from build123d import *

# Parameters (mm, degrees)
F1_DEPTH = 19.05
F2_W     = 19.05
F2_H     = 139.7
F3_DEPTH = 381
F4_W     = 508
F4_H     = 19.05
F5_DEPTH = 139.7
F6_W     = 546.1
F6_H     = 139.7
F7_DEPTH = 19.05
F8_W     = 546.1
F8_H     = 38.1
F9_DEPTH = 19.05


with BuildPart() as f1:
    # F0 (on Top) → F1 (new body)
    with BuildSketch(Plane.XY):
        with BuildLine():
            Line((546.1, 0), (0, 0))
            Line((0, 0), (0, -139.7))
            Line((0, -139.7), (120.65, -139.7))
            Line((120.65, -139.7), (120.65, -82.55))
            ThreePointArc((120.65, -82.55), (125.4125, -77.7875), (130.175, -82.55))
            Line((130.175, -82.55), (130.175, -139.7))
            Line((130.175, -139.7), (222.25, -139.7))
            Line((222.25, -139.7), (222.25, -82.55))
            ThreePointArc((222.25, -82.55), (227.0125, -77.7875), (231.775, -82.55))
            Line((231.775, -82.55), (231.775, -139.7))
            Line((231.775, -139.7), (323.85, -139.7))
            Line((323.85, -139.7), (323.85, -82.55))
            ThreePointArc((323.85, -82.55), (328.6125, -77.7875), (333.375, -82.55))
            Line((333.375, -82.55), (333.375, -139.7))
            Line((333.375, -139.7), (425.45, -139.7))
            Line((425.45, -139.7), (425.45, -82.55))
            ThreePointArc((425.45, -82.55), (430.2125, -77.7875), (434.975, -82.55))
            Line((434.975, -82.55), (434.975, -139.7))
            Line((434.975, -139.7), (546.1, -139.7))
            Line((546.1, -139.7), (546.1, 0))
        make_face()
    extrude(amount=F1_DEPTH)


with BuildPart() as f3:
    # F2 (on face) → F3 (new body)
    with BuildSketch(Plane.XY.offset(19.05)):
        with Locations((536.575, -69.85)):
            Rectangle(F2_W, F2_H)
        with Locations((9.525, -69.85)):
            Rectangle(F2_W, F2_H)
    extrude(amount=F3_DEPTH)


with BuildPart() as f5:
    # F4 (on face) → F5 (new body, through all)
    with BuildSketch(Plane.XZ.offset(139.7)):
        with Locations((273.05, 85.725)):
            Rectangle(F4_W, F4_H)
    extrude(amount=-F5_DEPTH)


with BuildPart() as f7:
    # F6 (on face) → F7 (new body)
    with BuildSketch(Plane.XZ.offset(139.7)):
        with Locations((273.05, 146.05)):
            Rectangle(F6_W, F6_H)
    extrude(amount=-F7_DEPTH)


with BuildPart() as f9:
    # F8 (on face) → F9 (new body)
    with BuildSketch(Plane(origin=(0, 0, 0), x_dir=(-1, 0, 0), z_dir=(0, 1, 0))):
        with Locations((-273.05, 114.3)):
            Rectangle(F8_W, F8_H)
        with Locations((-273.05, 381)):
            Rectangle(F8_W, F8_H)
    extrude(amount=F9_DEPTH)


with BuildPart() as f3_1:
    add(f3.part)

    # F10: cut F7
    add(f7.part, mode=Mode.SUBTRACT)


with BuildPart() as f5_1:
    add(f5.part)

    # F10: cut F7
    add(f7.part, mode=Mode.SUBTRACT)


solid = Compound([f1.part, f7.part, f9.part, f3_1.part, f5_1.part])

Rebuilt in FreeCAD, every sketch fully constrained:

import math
import FreeCAD as App
import Part
import Sketcher
from FreeCAD import Vector
Q = App.Units.Quantity

doc = App.newDocument("Part")
body = doc.addObject("PartDesign::Body", "Body")

# Sketch on XY plane
sketch1 = body.newObject("Sketcher::SketchObject", "Sketch")
sketch1.AttachmentSupport = (doc.getObject("XY_Plane"), [""])
sketch1.MapMode = "FlatFace"
sketch1.addGeometry(Part.LineSegment(Vector(546.1, 0, 0), Vector(0, 0, 0)), False)
sketch1.addGeometry(Part.LineSegment(Vector(0, 0, 0), Vector(0, -139.7, 0)), False)
sketch1.addGeometry(Part.LineSegment(Vector(0, -139.7, 0), Vector(120.7, -139.7, 0)), False)
sketch1.addGeometry(Part.LineSegment(Vector(120.7, -139.7, 0), Vector(120.7, -82.5, 0)), False)
sketch1.addGeometry(Part.ArcOfCircle(Part.Circle(Vector(125.4, -82.5, 0), Vector(0, 0, 1), 4.8), math.radians(0), math.radians(180)), False)
sketch1.addGeometry(Part.LineSegment(Vector(130.2, -82.5, 0), Vector(130.2, -139.7, 0)), False)
sketch1.addGeometry(Part.LineSegment(Vector(130.2, -139.7, 0), Vector(222.2, -139.7, 0)), False)
sketch1.addGeometry(Part.LineSegment(Vector(222.2, -139.7, 0), Vector(222.2, -82.5, 0)), False)
sketch1.addGeometry(Part.ArcOfCircle(Part.Circle(Vector(227, -82.5, 0), Vector(0, 0, 1), 4.8), math.radians(0), math.radians(180)), False)
sketch1.addGeometry(Part.LineSegment(Vector(231.8, -82.5, 0), Vector(231.8, -139.7, 0)), False)
sketch1.addGeometry(Part.LineSegment(Vector(231.8, -139.7, 0), Vector(323.9, -139.7, 0)), False)
sketch1.addGeometry(Part.LineSegment(Vector(323.9, -139.7, 0), Vector(323.9, -82.5, 0)), False)
sketch1.addGeometry(Part.ArcOfCircle(Part.Circle(Vector(328.6, -82.5, 0), Vector(0, 0, 1), 4.8), math.radians(0), math.radians(180)), False)
sketch1.addGeometry(Part.LineSegment(Vector(333.4, -82.5, 0), Vector(333.4, -139.7, 0)), False)
sketch1.addGeometry(Part.LineSegment(Vector(333.4, -139.7, 0), Vector(425.4, -139.7, 0)), False)
sketch1.addGeometry(Part.LineSegment(Vector(425.4, -139.7, 0), Vector(425.4, -82.5, 0)), False)
sketch1.addGeometry(Part.ArcOfCircle(Part.Circle(Vector(430.2, -82.5, 0), Vector(0, 0, 1), 4.8), math.radians(0), math.radians(180)), False)
sketch1.addGeometry(Part.LineSegment(Vector(435, -82.5, 0), Vector(435, -139.7, 0)), False)
sketch1.addGeometry(Part.LineSegment(Vector(435, -139.7, 0), Vector(546.1, -139.7, 0)), False)
sketch1.addGeometry(Part.LineSegment(Vector(546.1, -139.7, 0), Vector(546.1, 0, 0)), False)
sketch1.addConstraint(Sketcher.Constraint("Coincident", 0, 2, 1, 1))
sketch1.addConstraint(Sketcher.Constraint("Coincident", 1, 2, 2, 1))
sketch1.addConstraint(Sketcher.Constraint("Coincident", 2, 2, 3, 1))
sketch1.addConstraint(Sketcher.Constraint("Tangent", 3, 2, 4, 2))
sketch1.addConstraint(Sketcher.Constraint("Tangent", 4, 1, 5, 1))
sketch1.addConstraint(Sketcher.Constraint("Coincident", 5, 2, 6, 1))
sketch1.addConstraint(Sketcher.Constraint("Coincident", 6, 2, 7, 1))
sketch1.addConstraint(Sketcher.Constraint("Tangent", 7, 2, 8, 2))
sketch1.addConstraint(Sketcher.Constraint("Tangent", 8, 1, 9, 1))
sketch1.addConstraint(Sketcher.Constraint("Coincident", 9, 2, 10, 1))
sketch1.addConstraint(Sketcher.Constraint("Coincident", 10, 2, 11, 1))
sketch1.addConstraint(Sketcher.Constraint("Tangent", 11, 2, 12, 2))
sketch1.addConstraint(Sketcher.Constraint("Tangent", 12, 1, 13, 1))
sketch1.addConstraint(Sketcher.Constraint("Coincident", 13, 2, 14, 1))
sketch1.addConstraint(Sketcher.Constraint("Coincident", 14, 2, 15, 1))
sketch1.addConstraint(Sketcher.Constraint("Tangent", 15, 2, 16, 2))
sketch1.addConstraint(Sketcher.Constraint("Tangent", 16, 1, 17, 1))
sketch1.addConstraint(Sketcher.Constraint("Coincident", 17, 2, 18, 1))
sketch1.addConstraint(Sketcher.Constraint("Coincident", 18, 2, 19, 1))
sketch1.addConstraint(Sketcher.Constraint("Coincident", 19, 2, 0, 1))
sketch1.addConstraint(Sketcher.Constraint("Horizontal", 0))
sketch1.addConstraint(Sketcher.Constraint("Vertical", 1))
sketch1.addConstraint(Sketcher.Constraint("Horizontal", 2))
sketch1.addConstraint(Sketcher.Constraint("Vertical", 3))
sketch1.addConstraint(Sketcher.Constraint("Vertical", 5))
sketch1.addConstraint(Sketcher.Constraint("Horizontal", 6))
sketch1.addConstraint(Sketcher.Constraint("Vertical", 7))
sketch1.addConstraint(Sketcher.Constraint("Vertical", 9))
sketch1.addConstraint(Sketcher.Constraint("Horizontal", 10))
sketch1.addConstraint(Sketcher.Constraint("Vertical", 11))
sketch1.addConstraint(Sketcher.Constraint("Vertical", 13))
sketch1.addConstraint(Sketcher.Constraint("Horizontal", 14))
sketch1.addConstraint(Sketcher.Constraint("Vertical", 15))
sketch1.addConstraint(Sketcher.Constraint("Vertical", 17))
sketch1.addConstraint(Sketcher.Constraint("Horizontal", 18))
sketch1.addConstraint(Sketcher.Constraint("Vertical", 19))
sketch1.addConstraint(Sketcher.Constraint("Coincident", 0, 2, -1, 1))
sketch1.addConstraint(Sketcher.Constraint("Equal", 4, 8))
sketch1.addConstraint(Sketcher.Constraint("Equal", 8, 12))
sketch1.addConstraint(Sketcher.Constraint("Equal", 12, 16))
sketch1.addConstraint(Sketcher.Constraint("Horizontal", 4, 3, 8, 3))
sketch1.addConstraint(Sketcher.Constraint("Horizontal", 8, 3, 12, 3))
sketch1.addConstraint(Sketcher.Constraint("Horizontal", 12, 3, 16, 3))
sketch1.addConstraint(Sketcher.Constraint("Horizontal", 2, 2, 5, 2))
sketch1.addConstraint(Sketcher.Constraint("Horizontal", 6, 2, 9, 2))
sketch1.addConstraint(Sketcher.Constraint("Horizontal", 10, 2, 13, 2))
sketch1.addConstraint(Sketcher.Constraint("Horizontal", 14, 2, 17, 2))
sketch1.addConstraint(Sketcher.Constraint("Equal", 6, 10))
sketch1.addConstraint(Sketcher.Constraint("Equal", 10, 14))
sketch1.addConstraint(Sketcher.Constraint("DistanceX", 0, 2, 0, 1, Q("21.5 in")))
sketch1.addConstraint(Sketcher.Constraint("DistanceY", 1, 2, 1, 1, Q("5.5 in")))
sketch1.addConstraint(Sketcher.Constraint("Radius", 4, Q("0.1875 in")))
sketch1.addConstraint(Sketcher.Constraint("DistanceX", 4, 3, 8, 3, Q("4 in")))
sketch1.addConstraint(Sketcher.Constraint("DistanceX", 2, 1, 2, 2, Q("4.75 in")))
sketch1.addConstraint(Sketcher.Constraint("DistanceY", 3, 1, 3, 2, Q("2.25 in")))
pad1 = body.newObject("PartDesign::Pad", "Pad")
pad1.Profile = sketch1
pad1.Length = Q("0.75 in")
body2 = doc.addObject("PartDesign::Body", "Body001")
body2.AllowCompound = True

# Sketch on XY plane
sketch2 = body2.newObject("Sketcher::SketchObject", "Sketch001")
sketch2.AttachmentSupport = (doc.getObject("XY_Plane001"), [""])
sketch2.MapMode = "FlatFace"
sketch2.AttachmentOffset = App.Placement(Vector(0, 0, 0.75 * 25.4), App.Rotation())
sketch2.addGeometry(Part.LineSegment(Vector(527, 0, 0), Vector(527, -140, 0)), False)
sketch2.addGeometry(Part.LineSegment(Vector(527, -140, 0), Vector(546, -140, 0)), False)
sketch2.addGeometry(Part.LineSegment(Vector(546, -140, 0), Vector(546, 0, 0)), False)
sketch2.addGeometry(Part.LineSegment(Vector(546, 0, 0), Vector(527, 0, 0)), False)
sketch2.addGeometry(Part.LineSegment(Vector(0, 0, 0), Vector(0, -140, 0)), False)
sketch2.addGeometry(Part.LineSegment(Vector(0, -140, 0), Vector(19, -140, 0)), False)
sketch2.addGeometry(Part.LineSegment(Vector(19, -140, 0), Vector(19, 0, 0)), False)
sketch2.addGeometry(Part.LineSegment(Vector(19, 0, 0), Vector(0, 0, 0)), False)
sketch2.addConstraint(Sketcher.Constraint("Coincident", 0, 2, 1, 1))
sketch2.addConstraint(Sketcher.Constraint("Coincident", 1, 2, 2, 1))
sketch2.addConstraint(Sketcher.Constraint("Coincident", 2, 2, 3, 1))
sketch2.addConstraint(Sketcher.Constraint("Coincident", 3, 2, 0, 1))
sketch2.addConstraint(Sketcher.Constraint("Coincident", 4, 2, 5, 1))
sketch2.addConstraint(Sketcher.Constraint("Coincident", 5, 2, 6, 1))
sketch2.addConstraint(Sketcher.Constraint("Coincident", 6, 2, 7, 1))
sketch2.addConstraint(Sketcher.Constraint("Coincident", 7, 2, 4, 1))
sketch2.addConstraint(Sketcher.Constraint("Vertical", 0))
sketch2.addConstraint(Sketcher.Constraint("Horizontal", 1))
sketch2.addConstraint(Sketcher.Constraint("Vertical", 2))
sketch2.addConstraint(Sketcher.Constraint("Horizontal", 3))
sketch2.addConstraint(Sketcher.Constraint("Vertical", 4))
sketch2.addConstraint(Sketcher.Constraint("Horizontal", 5))
sketch2.addConstraint(Sketcher.Constraint("Vertical", 6))
sketch2.addConstraint(Sketcher.Constraint("Horizontal", 7))
sketch2.addConstraint(Sketcher.Constraint("Coincident", 7, 2, -1, 1))
sketch2.addConstraint(Sketcher.Constraint("PointOnObject", 2, 2, -1))
sketch2.addConstraint(Sketcher.Constraint("Horizontal", 1, 2, 4, 2))
sketch2.addConstraint(Sketcher.Constraint("Equal", 3, 5))
sketch2.addConstraint(Sketcher.Constraint("DistanceY", 0, 2, 0, 1, Q("5.5 in")))
sketch2.addConstraint(Sketcher.Constraint("DistanceX", 5, 2, 0, 2, Q("20 in")))
sketch2.addConstraint(Sketcher.Constraint("DistanceX", 1, 1, 1, 2, Q("0.75 in")))
pad2 = body2.newObject("PartDesign::Pad", "Pad001")
pad2.Profile = sketch2
pad2.Length = Q("15 in")
body3 = doc.addObject("PartDesign::Body", "Body002")

# Sketch on XZ plane
sketch3 = body3.newObject("Sketcher::SketchObject", "Sketch002")
sketch3.AttachmentSupport = (doc.getObject("XZ_Plane002"), [""])
sketch3.MapMode = "FlatFace"
sketch3.AttachmentOffset = App.Placement(Vector(0, 0, 5.5 * 25.4), App.Rotation())
sketch3.addGeometry(Part.LineSegment(Vector(19, 95, 0), Vector(19, 76, 0)), False)
sketch3.addGeometry(Part.LineSegment(Vector(19, 76, 0), Vector(527, 76, 0)), False)
sketch3.addGeometry(Part.LineSegment(Vector(527, 76, 0), Vector(527, 95, 0)), False)
sketch3.addGeometry(Part.LineSegment(Vector(527, 95, 0), Vector(19, 95, 0)), False)
sketch3.addConstraint(Sketcher.Constraint("Coincident", 0, 2, 1, 1))
sketch3.addConstraint(Sketcher.Constraint("Coincident", 1, 2, 2, 1))
sketch3.addConstraint(Sketcher.Constraint("Coincident", 2, 2, 3, 1))
sketch3.addConstraint(Sketcher.Constraint("Coincident", 3, 2, 0, 1))
sketch3.addConstraint(Sketcher.Constraint("Vertical", 0))
sketch3.addConstraint(Sketcher.Constraint("Horizontal", 1))
sketch3.addConstraint(Sketcher.Constraint("Vertical", 2))
sketch3.addConstraint(Sketcher.Constraint("Horizontal", 3))
sketch3.addConstraint(Sketcher.Constraint("DistanceX", 1, 1, 1, 2, Q("20 in")))
sketch3.addConstraint(Sketcher.Constraint("DistanceY", -1, 1, 0, 2, Q("3 in")))
sketch3.addConstraint(Sketcher.Constraint("DistanceY", 0, 2, 0, 1, Q("0.75 in")))
sketch3.addConstraint(Sketcher.Constraint("DistanceX", -1, 1, 0, 2, Q("0.75 in")))
pad3 = body3.newObject("PartDesign::Pad", "Pad002")
pad3.Profile = sketch3
pad3.Length = Q("5.5 in")
pad3.Reversed = True
body4 = doc.addObject("PartDesign::Body", "Body003")

# Sketch on XZ plane
sketch4 = body4.newObject("Sketcher::SketchObject", "Sketch003")
sketch4.AttachmentSupport = (doc.getObject("XZ_Plane003"), [""])
sketch4.MapMode = "FlatFace"
sketch4.AttachmentOffset = App.Placement(Vector(0, 0, 5.5 * 25.4), App.Rotation())
sketch4.addGeometry(Part.LineSegment(Vector(0, 216, 0), Vector(0, 76, 0)), False)
sketch4.addGeometry(Part.LineSegment(Vector(0, 76, 0), Vector(546, 76, 0)), False)
sketch4.addGeometry(Part.LineSegment(Vector(546, 76, 0), Vector(546, 216, 0)), False)
sketch4.addGeometry(Part.LineSegment(Vector(546, 216, 0), Vector(0, 216, 0)), False)
sketch4.addConstraint(Sketcher.Constraint("Coincident", 0, 2, 1, 1))
sketch4.addConstraint(Sketcher.Constraint("Coincident", 1, 2, 2, 1))
sketch4.addConstraint(Sketcher.Constraint("Coincident", 2, 2, 3, 1))
sketch4.addConstraint(Sketcher.Constraint("Coincident", 3, 2, 0, 1))
sketch4.addConstraint(Sketcher.Constraint("Vertical", 0))
sketch4.addConstraint(Sketcher.Constraint("Horizontal", 1))
sketch4.addConstraint(Sketcher.Constraint("Vertical", 2))
sketch4.addConstraint(Sketcher.Constraint("Horizontal", 3))
sketch4.addConstraint(Sketcher.Constraint("PointOnObject", 0, 2, -2))
sketch4.addConstraint(Sketcher.Constraint("DistanceX", 1, 1, 1, 2, Q("21.5 in")))
sketch4.addConstraint(Sketcher.Constraint("DistanceY", 0, 2, 0, 1, Q("5.5 in")))
sketch4.addConstraint(Sketcher.Constraint("DistanceY", -1, 1, 0, 2, Q("3 in")))
pad4 = body4.newObject("PartDesign::Pad", "Pad003")
pad4.Profile = sketch4
pad4.Length = Q("0.75 in")
pad4.Reversed = True
body5 = doc.addObject("PartDesign::Body", "Body004")
body5.AllowCompound = True

# Sketch on XZ plane
sketch5 = body5.newObject("Sketcher::SketchObject", "Sketch004")
sketch5.AttachmentSupport = (doc.getObject("XZ_Plane004"), [""])
sketch5.MapMode = "FlatFace"
sketch5.addGeometry(Part.LineSegment(Vector(546, 133, 0), Vector(546, 95, 0)), False)
sketch5.addGeometry(Part.LineSegment(Vector(546, 95, 0), Vector(0, 95, 0)), False)
sketch5.addGeometry(Part.LineSegment(Vector(0, 95, 0), Vector(0, 133, 0)), False)
sketch5.addGeometry(Part.LineSegment(Vector(0, 133, 0), Vector(546, 133, 0)), False)
sketch5.addGeometry(Part.LineSegment(Vector(546, 400, 0), Vector(546, 362, 0)), False)
sketch5.addGeometry(Part.LineSegment(Vector(546, 362, 0), Vector(0, 362, 0)), False)
sketch5.addGeometry(Part.LineSegment(Vector(0, 362, 0), Vector(0, 400, 0)), False)
sketch5.addGeometry(Part.LineSegment(Vector(0, 400, 0), Vector(546, 400, 0)), False)
sketch5.addConstraint(Sketcher.Constraint("Coincident", 0, 2, 1, 1))
sketch5.addConstraint(Sketcher.Constraint("Coincident", 1, 2, 2, 1))
sketch5.addConstraint(Sketcher.Constraint("Coincident", 2, 2, 3, 1))
sketch5.addConstraint(Sketcher.Constraint("Coincident", 3, 2, 0, 1))
sketch5.addConstraint(Sketcher.Constraint("Coincident", 4, 2, 5, 1))
sketch5.addConstraint(Sketcher.Constraint("Coincident", 5, 2, 6, 1))
sketch5.addConstraint(Sketcher.Constraint("Coincident", 6, 2, 7, 1))
sketch5.addConstraint(Sketcher.Constraint("Coincident", 7, 2, 4, 1))
sketch5.addConstraint(Sketcher.Constraint("Vertical", 0))
sketch5.addConstraint(Sketcher.Constraint("Horizontal", 1))
sketch5.addConstraint(Sketcher.Constraint("Vertical", 2))
sketch5.addConstraint(Sketcher.Constraint("Horizontal", 3))
sketch5.addConstraint(Sketcher.Constraint("Vertical", 4))
sketch5.addConstraint(Sketcher.Constraint("Horizontal", 5))
sketch5.addConstraint(Sketcher.Constraint("Vertical", 6))
sketch5.addConstraint(Sketcher.Constraint("Horizontal", 7))
sketch5.addConstraint(Sketcher.Constraint("PointOnObject", 1, 2, -2))
sketch5.addConstraint(Sketcher.Constraint("PointOnObject", 5, 2, -2))
sketch5.addConstraint(Sketcher.Constraint("Vertical", 3, 2, 4, 2))
sketch5.addConstraint(Sketcher.Constraint("Equal", 2, 4))
sketch5.addConstraint(Sketcher.Constraint("DistanceX", 1, 2, 1, 1, Q("21.5 in")))
sketch5.addConstraint(Sketcher.Constraint("DistanceY", 0, 2, 0, 1, Q("1.5 in")))
sketch5.addConstraint(Sketcher.Constraint("DistanceY", 3, 2, 4, 2, Q("9 in")))
sketch5.addConstraint(Sketcher.Constraint("DistanceY", -1, 1, 0, 2, Q("3.75 in")))
pad5 = body5.newObject("PartDesign::Pad", "Pad004")
pad5.Profile = sketch5
pad5.Length = Q("0.75 in")
pad5.Reversed = True
body2.AllowCompound = True
doc.recompute()

body6 = doc.addObject("PartDesign::Body", "Body005")
body6.BaseFeature = body4
boolean = body2.newObject("PartDesign::Boolean", "Boolean")
boolean.Type = "Cut"
boolean.addObjects([body6])
doc.recompute()

body7 = doc.addObject("PartDesign::Body", "Body006")
body7.BaseFeature = body4
boolean2 = body3.newObject("PartDesign::Boolean", "Boolean001")
boolean2.Type = "Cut"
boolean2.addObjects([body7])
doc.recompute()

doc.recompute()
